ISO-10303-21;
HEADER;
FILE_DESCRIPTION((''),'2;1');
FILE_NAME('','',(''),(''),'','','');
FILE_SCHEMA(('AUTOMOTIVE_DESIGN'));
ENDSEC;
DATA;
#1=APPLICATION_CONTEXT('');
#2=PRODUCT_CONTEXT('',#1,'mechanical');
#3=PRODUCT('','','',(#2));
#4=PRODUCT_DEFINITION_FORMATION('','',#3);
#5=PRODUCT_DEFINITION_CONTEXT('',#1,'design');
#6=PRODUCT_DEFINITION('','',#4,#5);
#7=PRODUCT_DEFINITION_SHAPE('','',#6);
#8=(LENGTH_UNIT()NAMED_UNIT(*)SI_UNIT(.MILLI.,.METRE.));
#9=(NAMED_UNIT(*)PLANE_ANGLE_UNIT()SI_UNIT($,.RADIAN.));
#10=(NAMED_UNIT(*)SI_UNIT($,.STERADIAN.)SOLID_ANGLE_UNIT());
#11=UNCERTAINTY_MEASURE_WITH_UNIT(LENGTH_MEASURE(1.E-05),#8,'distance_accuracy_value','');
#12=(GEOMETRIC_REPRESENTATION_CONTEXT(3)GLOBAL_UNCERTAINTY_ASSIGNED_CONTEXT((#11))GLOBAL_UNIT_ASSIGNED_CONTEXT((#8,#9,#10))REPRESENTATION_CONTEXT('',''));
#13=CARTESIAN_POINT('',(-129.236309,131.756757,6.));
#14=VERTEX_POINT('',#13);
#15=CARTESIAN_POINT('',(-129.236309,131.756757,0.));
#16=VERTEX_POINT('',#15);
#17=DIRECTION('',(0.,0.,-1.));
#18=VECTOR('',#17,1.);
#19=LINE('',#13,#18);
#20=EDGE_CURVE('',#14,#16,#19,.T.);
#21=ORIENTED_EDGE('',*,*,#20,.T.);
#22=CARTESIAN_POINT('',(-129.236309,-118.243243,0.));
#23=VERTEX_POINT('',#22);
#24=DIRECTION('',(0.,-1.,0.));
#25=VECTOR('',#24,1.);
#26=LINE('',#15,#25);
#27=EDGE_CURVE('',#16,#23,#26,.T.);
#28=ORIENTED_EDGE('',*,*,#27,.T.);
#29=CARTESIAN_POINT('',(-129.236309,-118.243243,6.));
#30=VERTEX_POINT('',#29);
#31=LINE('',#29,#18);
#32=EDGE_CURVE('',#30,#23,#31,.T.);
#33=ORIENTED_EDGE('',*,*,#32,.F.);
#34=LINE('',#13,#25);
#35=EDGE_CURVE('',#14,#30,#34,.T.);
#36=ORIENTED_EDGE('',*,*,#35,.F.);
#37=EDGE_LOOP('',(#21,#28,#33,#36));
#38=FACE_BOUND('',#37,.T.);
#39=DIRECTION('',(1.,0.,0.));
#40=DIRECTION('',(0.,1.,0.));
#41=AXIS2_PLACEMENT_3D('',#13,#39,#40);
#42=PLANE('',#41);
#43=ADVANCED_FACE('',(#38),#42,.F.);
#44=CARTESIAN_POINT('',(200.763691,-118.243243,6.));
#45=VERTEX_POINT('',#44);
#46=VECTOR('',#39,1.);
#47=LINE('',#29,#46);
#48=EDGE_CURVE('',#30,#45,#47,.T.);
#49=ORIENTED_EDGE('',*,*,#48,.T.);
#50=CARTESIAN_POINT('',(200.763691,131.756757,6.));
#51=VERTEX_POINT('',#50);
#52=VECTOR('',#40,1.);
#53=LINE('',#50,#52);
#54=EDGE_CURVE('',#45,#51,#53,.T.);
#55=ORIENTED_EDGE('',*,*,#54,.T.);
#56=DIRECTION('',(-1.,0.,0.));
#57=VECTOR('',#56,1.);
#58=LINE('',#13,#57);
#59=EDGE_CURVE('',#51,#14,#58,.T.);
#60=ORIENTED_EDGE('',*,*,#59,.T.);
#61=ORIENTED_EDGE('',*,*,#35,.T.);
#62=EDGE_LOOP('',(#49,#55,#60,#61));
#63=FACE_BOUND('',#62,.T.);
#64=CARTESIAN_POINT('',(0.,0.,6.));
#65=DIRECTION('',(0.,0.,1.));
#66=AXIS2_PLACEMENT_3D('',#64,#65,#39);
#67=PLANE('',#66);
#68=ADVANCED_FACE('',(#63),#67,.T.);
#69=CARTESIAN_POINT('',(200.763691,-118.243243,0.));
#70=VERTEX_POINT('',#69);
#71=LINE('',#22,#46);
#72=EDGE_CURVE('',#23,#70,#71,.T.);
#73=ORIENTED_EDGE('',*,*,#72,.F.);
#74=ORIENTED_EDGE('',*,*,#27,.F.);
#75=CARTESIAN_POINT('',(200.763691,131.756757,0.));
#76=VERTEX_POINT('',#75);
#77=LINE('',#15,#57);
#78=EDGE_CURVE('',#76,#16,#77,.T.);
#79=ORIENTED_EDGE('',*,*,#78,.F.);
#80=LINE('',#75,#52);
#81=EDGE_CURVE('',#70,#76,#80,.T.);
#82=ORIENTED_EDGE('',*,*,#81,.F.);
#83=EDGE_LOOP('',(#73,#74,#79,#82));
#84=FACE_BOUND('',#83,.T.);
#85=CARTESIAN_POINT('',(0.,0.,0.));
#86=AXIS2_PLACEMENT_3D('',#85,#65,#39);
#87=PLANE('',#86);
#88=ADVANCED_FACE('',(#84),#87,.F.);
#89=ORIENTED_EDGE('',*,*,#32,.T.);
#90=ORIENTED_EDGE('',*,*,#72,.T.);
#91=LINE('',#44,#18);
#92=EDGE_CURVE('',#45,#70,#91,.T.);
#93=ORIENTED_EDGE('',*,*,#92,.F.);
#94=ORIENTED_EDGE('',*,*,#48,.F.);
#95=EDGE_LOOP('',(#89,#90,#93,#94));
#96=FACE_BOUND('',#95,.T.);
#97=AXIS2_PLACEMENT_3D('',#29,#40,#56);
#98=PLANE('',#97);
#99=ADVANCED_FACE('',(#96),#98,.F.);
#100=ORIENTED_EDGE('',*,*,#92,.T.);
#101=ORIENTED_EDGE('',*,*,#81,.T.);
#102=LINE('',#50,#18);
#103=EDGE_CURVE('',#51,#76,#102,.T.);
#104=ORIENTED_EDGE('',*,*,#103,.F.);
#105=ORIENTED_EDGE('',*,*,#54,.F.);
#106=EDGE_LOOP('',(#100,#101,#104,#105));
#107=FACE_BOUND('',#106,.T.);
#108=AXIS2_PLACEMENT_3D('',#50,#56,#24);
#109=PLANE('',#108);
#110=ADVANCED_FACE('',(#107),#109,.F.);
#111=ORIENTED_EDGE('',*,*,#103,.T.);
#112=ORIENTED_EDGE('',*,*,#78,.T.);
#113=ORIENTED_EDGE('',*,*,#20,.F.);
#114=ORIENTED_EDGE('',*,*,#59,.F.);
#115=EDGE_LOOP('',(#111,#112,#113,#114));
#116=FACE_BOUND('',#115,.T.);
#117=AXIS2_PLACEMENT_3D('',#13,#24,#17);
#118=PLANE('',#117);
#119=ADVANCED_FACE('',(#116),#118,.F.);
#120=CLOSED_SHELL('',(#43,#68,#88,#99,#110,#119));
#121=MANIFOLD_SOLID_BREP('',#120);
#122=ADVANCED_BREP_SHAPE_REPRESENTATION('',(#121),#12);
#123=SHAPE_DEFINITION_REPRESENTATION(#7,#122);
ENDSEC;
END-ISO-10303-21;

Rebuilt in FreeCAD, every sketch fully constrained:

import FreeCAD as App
import Part
import Sketcher

doc = App.newDocument("Part")
body = doc.addObject("PartDesign::Body", "Body")

# Sketch on XY plane
sketch1 = doc.addObject("Sketcher::SketchObject", "Sketch")
body.addObject(sketch1)
sketch1.AttachmentSupport = (doc.XY_Plane, [""])
sketch1.MapMode = "FlatFace"
sketch1.addGeometry(Part.LineSegment(App.Vector(-129, 132, 0), App.Vector(-129, -118, 0)), False)
sketch1.addGeometry(Part.LineSegment(App.Vector(-129, -118, 0), App.Vector(201, -118, 0)), False)
sketch1.addGeometry(Part.LineSegment(App.Vector(201, -118, 0), App.Vector(201, 132, 0)), False)
sketch1.addGeometry(Part.LineSegment(App.Vector(201, 132, 0), App.Vector(-129, 132, 0)), False)
sketch1.addConstraint(Sketcher.Constraint("Coincident", 0, 2, 1, 1))
sketch1.addConstraint(Sketcher.Constraint("Coincident", 1, 2, 2, 1))
sketch1.addConstraint(Sketcher.Constraint("Coincident", 2, 2, 3, 1))
sketch1.addConstraint(Sketcher.Constraint("Coincident", 3, 2, 0, 1))
sketch1.addConstraint(Sketcher.Constraint("Vertical", 0))
sketch1.addConstraint(Sketcher.Constraint("Horizontal", 1))
sketch1.addConstraint(Sketcher.Constraint("Vertical", 2))
sketch1.addConstraint(Sketcher.Constraint("Horizontal", 3))
sketch1.addConstraint(Sketcher.Constraint("DistanceX", 1, 1, 1, 2, 330.0))
sketch1.addConstraint(Sketcher.Constraint("DistanceY", 0, 2, 0, 1, 250.0))
sketch1.addConstraint(Sketcher.Constraint("DistanceX", 0, 2, -1, 1, 129.236309))
sketch1.addConstraint(Sketcher.Constraint("DistanceY", 0, 2, -1, 1, 118.243243))
pad1 = doc.addObject("PartDesign::Pad", "Pad")
body.addObject(pad1)
pad1.Profile = sketch1
pad1.Length = 6

doc.recompute()
